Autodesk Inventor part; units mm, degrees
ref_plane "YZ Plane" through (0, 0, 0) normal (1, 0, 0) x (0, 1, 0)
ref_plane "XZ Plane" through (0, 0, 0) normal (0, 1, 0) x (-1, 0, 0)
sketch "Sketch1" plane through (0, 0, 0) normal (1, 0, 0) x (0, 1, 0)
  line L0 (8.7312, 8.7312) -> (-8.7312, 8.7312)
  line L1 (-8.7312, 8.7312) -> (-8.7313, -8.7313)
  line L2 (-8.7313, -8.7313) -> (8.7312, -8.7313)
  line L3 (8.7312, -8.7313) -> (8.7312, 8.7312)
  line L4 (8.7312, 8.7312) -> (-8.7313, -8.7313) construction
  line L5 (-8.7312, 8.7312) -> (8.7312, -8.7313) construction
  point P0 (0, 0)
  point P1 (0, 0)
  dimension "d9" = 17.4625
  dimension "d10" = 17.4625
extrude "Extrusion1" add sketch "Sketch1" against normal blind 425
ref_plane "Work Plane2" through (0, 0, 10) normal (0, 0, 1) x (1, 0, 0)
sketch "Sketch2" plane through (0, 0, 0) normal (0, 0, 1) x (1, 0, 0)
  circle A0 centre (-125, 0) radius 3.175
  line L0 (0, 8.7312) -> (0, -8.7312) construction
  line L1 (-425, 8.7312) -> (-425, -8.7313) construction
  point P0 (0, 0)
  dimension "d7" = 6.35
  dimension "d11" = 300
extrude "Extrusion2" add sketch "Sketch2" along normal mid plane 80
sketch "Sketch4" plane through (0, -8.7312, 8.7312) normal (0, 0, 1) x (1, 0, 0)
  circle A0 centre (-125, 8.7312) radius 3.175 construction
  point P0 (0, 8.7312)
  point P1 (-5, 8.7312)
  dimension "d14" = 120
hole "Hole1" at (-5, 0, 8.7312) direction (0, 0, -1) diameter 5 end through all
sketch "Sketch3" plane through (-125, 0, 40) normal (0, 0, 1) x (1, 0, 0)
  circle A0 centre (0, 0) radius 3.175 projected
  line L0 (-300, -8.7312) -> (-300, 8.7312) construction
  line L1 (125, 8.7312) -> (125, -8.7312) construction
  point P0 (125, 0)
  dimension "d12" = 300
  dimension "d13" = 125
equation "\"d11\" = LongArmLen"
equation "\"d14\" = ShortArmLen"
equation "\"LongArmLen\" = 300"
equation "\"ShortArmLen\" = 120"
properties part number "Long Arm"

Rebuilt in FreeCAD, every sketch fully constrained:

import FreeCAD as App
import Part
import Sketcher
from FreeCAD import Vector
Q = App.Units.Quantity

doc = App.newDocument("Part")
body = doc.addObject("PartDesign::Body", "Body")

# Sketch on YZ plane
sketch1 = doc.addObject("Sketcher::SketchObject", "Sketch")
body.addObject(sketch1)
sketch1.AttachmentSupport = (doc.YZ_Plane, [""])
sketch1.MapMode = "FlatFace"
sketch1.addGeometry([
    Part.LineSegment(Vector(8.7312, -8.7313, 0), Vector(8.7312, 8.7312, 0)),
    Part.LineSegment(Vector(8.7312, 8.7312, 0), Vector(-8.7312, 8.7312, 0)),
    Part.LineSegment(Vector(-8.7312, 8.7312, 0), Vector(-8.7313, -8.7313, 0)),
    Part.LineSegment(Vector(-8.7313, -8.7313, 0), Vector(8.7312, -8.7313, 0)),
], False)
sketch1.addConstraint([
    Sketcher.Constraint("Coincident", 0, 2, 1, 1),
    Sketcher.Constraint("Coincident", 1, 2, 2, 1),
    Sketcher.Constraint("Coincident", 2, 2, 3, 1),
    Sketcher.Constraint("Coincident", 3, 2, 0, 1),
    Sketcher.Constraint("Vertical", 0),
    Sketcher.Constraint("Horizontal", 1),
    Sketcher.Constraint("Vertical", 2),
    Sketcher.Constraint("Horizontal", 3),
    Sketcher.Constraint("Symmetric", 0, 2, 2, 2, -1, 1),
    Sketcher.Constraint("Equal", 3, 0),
    Sketcher.Constraint("DistanceX", 1, 2, 1, 1, Q("0.6875 in")),
])
pad1 = doc.addObject("PartDesign::Pad", "Pad")
body.addObject(pad1)
pad1.Profile = sketch1
pad1.Length = 425
pad1.Reversed = True

# Sketch on XY plane
sketch2 = doc.addObject("Sketcher::SketchObject", "Sketch001")
body.addObject(sketch2)
sketch2.AttachmentSupport = (doc.XY_Plane, [""])
sketch2.MapMode = "FlatFace"
sketch2.addGeometry(Part.Circle(Vector(-125, 0, 0), Vector(0, 0, 1), 3.175), False)
sketch2.addConstraint([
    Sketcher.Constraint("PointOnObject", 0, 3, -1),
    Sketcher.Constraint("Diameter", 0, Q("0.25 in")),
    Sketcher.Constraint("DistanceX", 0, 3, -1, 1, 125.0),
])
pad2 = doc.addObject("PartDesign::Pad", "Pad001")
body.addObject(pad2)
pad2.Profile = sketch2
pad2.Length = Q("3.1496063 in")
pad2.Midplane = True

# Sketch on XY plane
sketch3 = doc.addObject("Sketcher::SketchObject", "Sketch002")
body.addObject(sketch3)
sketch3.AttachmentSupport = (doc.XY_Plane, [""])
sketch3.MapMode = "FlatFace"
sketch3.AttachmentOffset = App.Placement(Vector(0, 0, 0.343748 * 25.4), App.Rotation())
sketch3.addGeometry(Part.Circle(Vector(-5, 0, 0), Vector(0, 0, 1), 2.5), False)
sketch3.addConstraint([
    Sketcher.Constraint("PointOnObject", 0, 3, -1),
    Sketcher.Constraint("Diameter", 0, 5.0),
    Sketcher.Constraint("DistanceX", 0, 3, -1, 1, 5.0),
])
doc.recompute()
hole = doc.addObject("PartDesign::Hole", "Hole")
body.addObject(hole)
hole.Profile = sketch3
hole.ThreadType = "None"
hole.Diameter = 5
hole.DepthType = "ThroughAll"

doc.recompute()
